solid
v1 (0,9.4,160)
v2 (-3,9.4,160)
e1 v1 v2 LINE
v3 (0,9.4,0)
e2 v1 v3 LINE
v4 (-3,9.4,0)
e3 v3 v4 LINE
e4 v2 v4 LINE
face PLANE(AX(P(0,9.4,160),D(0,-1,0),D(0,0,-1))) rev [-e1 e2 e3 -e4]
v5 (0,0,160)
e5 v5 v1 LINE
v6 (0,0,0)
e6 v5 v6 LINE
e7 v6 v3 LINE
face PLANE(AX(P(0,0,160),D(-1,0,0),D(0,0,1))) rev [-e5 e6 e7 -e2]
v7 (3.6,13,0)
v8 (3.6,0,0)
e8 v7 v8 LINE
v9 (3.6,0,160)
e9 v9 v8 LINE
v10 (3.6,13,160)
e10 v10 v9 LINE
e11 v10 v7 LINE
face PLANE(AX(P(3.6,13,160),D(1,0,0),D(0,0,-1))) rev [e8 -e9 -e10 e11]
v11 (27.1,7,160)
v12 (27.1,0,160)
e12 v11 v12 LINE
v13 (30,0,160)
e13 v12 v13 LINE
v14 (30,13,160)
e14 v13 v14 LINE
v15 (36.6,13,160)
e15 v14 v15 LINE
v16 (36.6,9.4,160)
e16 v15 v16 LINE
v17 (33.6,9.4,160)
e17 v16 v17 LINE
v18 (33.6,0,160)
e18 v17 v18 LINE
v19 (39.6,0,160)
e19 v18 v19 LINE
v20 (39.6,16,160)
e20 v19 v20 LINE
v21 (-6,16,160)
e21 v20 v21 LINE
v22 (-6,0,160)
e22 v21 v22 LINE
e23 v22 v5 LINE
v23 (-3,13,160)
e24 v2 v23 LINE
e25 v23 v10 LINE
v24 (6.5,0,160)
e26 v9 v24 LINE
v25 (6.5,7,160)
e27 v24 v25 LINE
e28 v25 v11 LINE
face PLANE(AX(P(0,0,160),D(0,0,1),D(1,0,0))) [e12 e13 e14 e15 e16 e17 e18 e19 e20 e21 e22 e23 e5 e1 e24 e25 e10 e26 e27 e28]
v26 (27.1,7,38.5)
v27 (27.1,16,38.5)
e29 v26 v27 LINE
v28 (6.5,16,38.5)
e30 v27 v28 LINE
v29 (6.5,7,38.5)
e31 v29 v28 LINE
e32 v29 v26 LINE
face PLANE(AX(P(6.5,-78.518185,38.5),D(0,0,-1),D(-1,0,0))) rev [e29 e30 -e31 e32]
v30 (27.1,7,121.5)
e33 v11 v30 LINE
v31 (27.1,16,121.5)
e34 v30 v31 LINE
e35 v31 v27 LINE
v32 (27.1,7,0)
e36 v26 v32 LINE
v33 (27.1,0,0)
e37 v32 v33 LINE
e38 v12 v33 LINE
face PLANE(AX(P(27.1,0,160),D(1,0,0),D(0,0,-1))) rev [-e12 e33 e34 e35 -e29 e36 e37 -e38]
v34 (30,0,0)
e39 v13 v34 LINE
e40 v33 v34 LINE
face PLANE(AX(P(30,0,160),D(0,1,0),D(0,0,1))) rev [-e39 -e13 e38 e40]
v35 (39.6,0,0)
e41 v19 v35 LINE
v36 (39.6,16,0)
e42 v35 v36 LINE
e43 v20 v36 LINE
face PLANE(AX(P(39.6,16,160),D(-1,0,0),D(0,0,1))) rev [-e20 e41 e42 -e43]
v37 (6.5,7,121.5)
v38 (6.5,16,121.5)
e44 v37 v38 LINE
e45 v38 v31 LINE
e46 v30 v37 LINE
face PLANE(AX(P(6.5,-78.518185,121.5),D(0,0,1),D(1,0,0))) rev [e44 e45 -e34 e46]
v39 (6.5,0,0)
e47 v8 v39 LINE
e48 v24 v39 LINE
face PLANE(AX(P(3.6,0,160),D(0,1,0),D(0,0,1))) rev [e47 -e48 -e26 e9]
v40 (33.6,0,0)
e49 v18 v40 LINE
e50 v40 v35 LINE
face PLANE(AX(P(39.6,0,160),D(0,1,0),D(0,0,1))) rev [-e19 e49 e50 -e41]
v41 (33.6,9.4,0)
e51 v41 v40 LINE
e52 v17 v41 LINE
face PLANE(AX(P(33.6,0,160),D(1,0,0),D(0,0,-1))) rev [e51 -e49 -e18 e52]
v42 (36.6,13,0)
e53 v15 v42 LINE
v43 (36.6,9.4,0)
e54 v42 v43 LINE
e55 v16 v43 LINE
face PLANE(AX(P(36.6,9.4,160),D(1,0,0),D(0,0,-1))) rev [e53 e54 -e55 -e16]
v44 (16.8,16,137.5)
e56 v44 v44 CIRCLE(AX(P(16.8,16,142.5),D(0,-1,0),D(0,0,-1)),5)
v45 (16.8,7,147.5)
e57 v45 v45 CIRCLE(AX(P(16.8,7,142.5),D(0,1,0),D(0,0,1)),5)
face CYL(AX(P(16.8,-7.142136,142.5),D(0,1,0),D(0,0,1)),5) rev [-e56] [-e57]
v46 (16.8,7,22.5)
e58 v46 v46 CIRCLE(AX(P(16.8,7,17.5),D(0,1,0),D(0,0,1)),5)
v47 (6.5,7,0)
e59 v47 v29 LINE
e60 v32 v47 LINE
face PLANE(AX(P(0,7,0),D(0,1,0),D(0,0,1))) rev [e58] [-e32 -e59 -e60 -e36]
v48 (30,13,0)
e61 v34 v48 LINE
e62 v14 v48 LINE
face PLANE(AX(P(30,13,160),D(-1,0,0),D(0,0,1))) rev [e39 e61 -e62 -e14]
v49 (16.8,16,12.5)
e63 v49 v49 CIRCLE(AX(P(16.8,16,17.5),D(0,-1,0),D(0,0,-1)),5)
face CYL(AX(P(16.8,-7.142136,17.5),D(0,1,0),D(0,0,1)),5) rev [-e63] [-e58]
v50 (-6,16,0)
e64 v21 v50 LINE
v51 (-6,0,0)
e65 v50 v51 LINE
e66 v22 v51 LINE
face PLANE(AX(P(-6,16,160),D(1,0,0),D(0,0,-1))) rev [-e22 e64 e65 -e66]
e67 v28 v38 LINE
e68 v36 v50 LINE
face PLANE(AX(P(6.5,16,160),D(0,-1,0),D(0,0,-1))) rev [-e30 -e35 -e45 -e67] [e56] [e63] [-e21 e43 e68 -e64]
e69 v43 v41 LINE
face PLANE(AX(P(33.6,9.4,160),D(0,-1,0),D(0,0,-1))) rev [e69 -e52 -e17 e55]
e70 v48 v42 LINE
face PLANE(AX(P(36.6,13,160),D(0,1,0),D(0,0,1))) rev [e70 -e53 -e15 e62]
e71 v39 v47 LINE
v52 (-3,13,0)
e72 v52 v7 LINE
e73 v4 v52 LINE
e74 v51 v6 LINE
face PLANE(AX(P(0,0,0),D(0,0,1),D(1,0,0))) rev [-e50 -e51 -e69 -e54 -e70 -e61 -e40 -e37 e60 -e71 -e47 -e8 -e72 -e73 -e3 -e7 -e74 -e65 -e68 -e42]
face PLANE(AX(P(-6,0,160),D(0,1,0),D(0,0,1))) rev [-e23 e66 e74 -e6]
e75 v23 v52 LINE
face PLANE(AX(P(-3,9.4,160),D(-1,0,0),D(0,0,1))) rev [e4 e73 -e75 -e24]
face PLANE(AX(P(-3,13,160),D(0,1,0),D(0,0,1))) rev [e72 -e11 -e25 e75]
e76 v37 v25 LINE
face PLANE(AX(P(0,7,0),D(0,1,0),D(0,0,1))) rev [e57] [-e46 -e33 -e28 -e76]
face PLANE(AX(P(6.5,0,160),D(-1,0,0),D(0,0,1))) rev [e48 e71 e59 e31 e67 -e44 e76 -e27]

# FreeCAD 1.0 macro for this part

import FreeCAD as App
import Part
import Sketcher
Q = App.Units.Quantity

doc = App.newDocument("Part")
body = doc.addObject("PartDesign::Body", "Body")

# Sketch on XY plane
sketch1 = body.newObject("Sketcher::SketchObject", "Sketch")
sketch1.AttachmentSupport = (doc.getObject("XY_Plane"), [""])
sketch1.MapMode = "FlatFace"
sketch1.addGeometry(Part.LineSegment(App.Vector(0, 0, 0), App.Vector(0, 9.4, 0)), False)
sketch1.addGeometry(Part.LineSegment(App.Vector(0, 9.4, 0), App.Vector(-3, 9.4, 0)), False)
sketch1.addGeometry(Part.LineSegment(App.Vector(-3, 9.4, 0), App.Vector(-3, 13, 0)), False)
sketch1.addGeometry(Part.LineSegment(App.Vector(-3, 13, 0), App.Vector(3.6, 13, 0)), False)
sketch1.addGeometry(Part.LineSegment(App.Vector(3.6, 13, 0), App.Vector(3.6, 0, 0)), False)
sketch1.addGeometry(Part.LineSegment(App.Vector(3.6, 0, 0), App.Vector(6.5, 0, 0)), False)
sketch1.addGeometry(Part.LineSegment(App.Vector(6.5, 0, 0), App.Vector(6.5, 16, 0)), False)
sketch1.addGeometry(Part.LineSegment(App.Vector(6.5, 16, 0), App.Vector(-6, 16, 0)), False)
sketch1.addGeometry(Part.LineSegment(App.Vector(-6, 16, 0), App.Vector(-6, 0, 0)), False)
sketch1.addGeometry(Part.LineSegment(App.Vector(-6, 0, 0), App.Vector(0, 0, 0)), False)
sketch1.addConstraint(Sketcher.Constraint("Coincident", 0, 2, 1, 1))
sketch1.addConstraint(Sketcher.Constraint("Coincident", 1, 2, 2, 1))
sketch1.addConstraint(Sketcher.Constraint("Coincident", 2, 2, 3, 1))
sketch1.addConstraint(Sketcher.Constraint("Coincident", 3, 2, 4, 1))
sketch1.addConstraint(Sketcher.Constraint("Coincident", 4, 2, 5, 1))
sketch1.addConstraint(Sketcher.Constraint("Coincident", 5, 2, 6, 1))
sketch1.addConstraint(Sketcher.Constraint("Coincident", 6, 2, 7, 1))
sketch1.addConstraint(Sketcher.Constraint("Coincident", 7, 2, 8, 1))
sketch1.addConstraint(Sketcher.Constraint("Coincident", 8, 2, 9, 1))
sketch1.addConstraint(Sketcher.Constraint("Coincident", 9, 2, 0, 1))
sketch1.addConstraint(Sketcher.Constraint("Vertical", 0))
sketch1.addConstraint(Sketcher.Constraint("Horizontal", 1))
sketch1.addConstraint(Sketcher.Constraint("Vertical", 2))
sketch1.addConstraint(Sketcher.Constraint("Horizontal", 3))
sketch1.addConstraint(Sketcher.Constraint("Vertical", 4))
sketch1.addConstraint(Sketcher.Constraint("Horizontal", 5))
sketch1.addConstraint(Sketcher.Constraint("Vertical", 6))
sketch1.addConstraint(Sketcher.Constraint("Horizontal", 7))
sketch1.addConstraint(Sketcher.Constraint("Vertical", 8))
sketch1.addConstraint(Sketcher.Constraint("Horizontal", 9))
sketch1.addConstraint(Sketcher.Constraint("Coincident", 9, 2, -1, 1))
sketch1.addConstraint(Sketcher.Constraint("PointOnObject", 4, 2, -1))
sketch1.addConstraint(Sketcher.Constraint("DistanceX", 1, 2, 1, 1, Q("3 mm")))
sketch1.addConstraint(Sketcher.Constraint("DistanceX", 9, 1, 9, 2, Q("6 mm")))
sketch1.addConstraint(Sketcher.Constraint("DistanceY", 4, 2, 4, 1, Q("13 mm")))
sketch1.addConstraint(Sketcher.Constraint("DistanceY", 6, 1, 6, 2, Q("16 mm")))
sketch1.addConstraint(Sketcher.Constraint("DistanceX", 3, 1, 3, 2, Q("6.6 mm")))
sketch1.addConstraint(Sketcher.Constraint("DistanceX", 5, 1, 5, 2, Q("2.9 mm")))
sketch1.addConstraint(Sketcher.Constraint("DistanceY", 0, 1, 0, 2, Q("9.4 mm")))
pad1 = body.newObject("PartDesign::Pad", "Pad")
pad1.Profile = sketch1
pad1.Length = 160
body2 = doc.addObject("PartDesign::Body", "Body001")

# Sketch on XY plane
sketch2 = body2.newObject("Sketcher::SketchObject", "Sketch001")
sketch2.AttachmentSupport = (doc.getObject("XY_Plane001"), [""])
sketch2.MapMode = "FlatFace"
sketch2.addGeometry(Part.LineSegment(App.Vector(33.6, 0, 0), App.Vector(39.6, 0, 0)), False)
sketch2.addGeometry(Part.LineSegment(App.Vector(39.6, 0, 0), App.Vector(39.6, 16, 0)), False)
sketch2.addGeometry(Part.LineSegment(App.Vector(39.6, 16, 0), App.Vector(27.1, 16, 0)), False)
sketch2.addGeometry(Part.LineSegment(App.Vector(27.1, 16, 0), App.Vector(27.1, 0, 0)), False)
sketch2.addGeometry(Part.LineSegment(App.Vector(27.1, 0, 0), App.Vector(30, 0, 0)), False)
sketch2.addGeometry(Part.LineSegment(App.Vector(30, 0, 0), App.Vector(30, 13, 0)), False)
sketch2.addGeometry(Part.LineSegment(App.Vector(30, 13, 0), App.Vector(36.6, 13, 0)), False)
sketch2.addGeometry(Part.LineSegment(App.Vector(36.6, 13, 0), App.Vector(36.6, 9.4, 0)), False)
sketch2.addGeometry(Part.LineSegment(App.Vector(36.6, 9.4, 0), App.Vector(33.6, 9.4, 0)), False)
sketch2.addGeometry(Part.LineSegment(App.Vector(33.6, 9.4, 0), App.Vector(33.6, 0, 0)), False)
sketch2.addConstraint(Sketcher.Constraint("Coincident", 0, 2, 1, 1))
sketch2.addConstraint(Sketcher.Constraint("Coincident", 1, 2, 2, 1))
sketch2.addConstraint(Sketcher.Constraint("Coincident", 2, 2, 3, 1))
sketch2.addConstraint(Sketcher.Constraint("Coincident", 3, 2, 4, 1))
sketch2.addConstraint(Sketcher.Constraint("Coincident", 4, 2, 5, 1))
sketch2.addConstraint(Sketcher.Constraint("Coincident", 5, 2, 6, 1))
sketch2.addConstraint(Sketcher.Constraint("Coincident", 6, 2, 7, 1))
sketch2.addConstraint(Sketcher.Constraint("Coincident", 7, 2, 8, 1))
sketch2.addConstraint(Sketcher.Constraint("Coincident", 8, 2, 9, 1))
sketch2.addConstraint(Sketcher.Constraint("Coincident", 9, 2, 0, 1))
sketch2.addConstraint(Sketcher.Constraint("Horizontal", 0))
sketch2.addConstraint(Sketcher.Constraint("Vertical", 1))
sketch2.addConstraint(Sketcher.Constraint("Horizontal", 2))
sketch2.addConstraint(Sketcher.Constraint("Vertical", 3))
sketch2.addConstraint(Sketcher.Constraint("Horizontal", 4))
sketch2.addConstraint(Sketcher.Constraint("Vertical", 5))
sketch2.addConstraint(Sketcher.Constraint("Horizontal", 6))
sketch2.addConstraint(Sketcher.Constraint("Vertical", 7))
sketch2.addConstraint(Sketcher.Constraint("Horizontal", 8))
sketch2.addConstraint(Sketcher.Constraint("Vertical", 9))
sketch2.addConstraint(Sketcher.Constraint("PointOnObject", 0, 2, -1))
sketch2.addConstraint(Sketcher.Constraint("PointOnObject", 3, 2, -1))
sketch2.addConstraint(Sketcher.Constraint("DistanceX", 0, 1, 0, 2, Q("6 mm")))
sketch2.addConstraint(Sketcher.Constraint("DistanceX", 8, 2, 8, 1, Q("3 mm")))
sketch2.addConstraint(Sketcher.Constraint("DistanceY", 1, 1, 1, 2, Q("16 mm")))
sketch2.addConstraint(Sketcher.Constraint("DistanceY", 5, 1, 5, 2, Q("13 mm")))
sketch2.addConstraint(Sketcher.Constraint("DistanceX", 2, 2, 2, 1, Q("12.5 mm")))
sketch2.addConstraint(Sketcher.Constraint("DistanceX", 4, 1, 4, 2, Q("2.9 mm")))
sketch2.addConstraint(Sketcher.Constraint("DistanceY", 7, 2, 7, 1, Q("3.6 mm")))
sketch2.addConstraint(Sketcher.Constraint("DistanceX", -1, 1, 4, 2, Q("30 mm")))
pad2 = body2.newObject("PartDesign::Pad", "Pad001")
pad2.Profile = sketch2
pad2.Length = 160
body.AllowCompound = True
doc.recompute()

boolean = body.newObject("PartDesign::Boolean", "Boolean")
boolean.Type = "Fuse"
boolean.addObjects([body2])

# Sketch on XZ plane
sketch3 = body.newObject("Sketcher::SketchObject", "Sketch002")
sketch3.AttachmentSupport = (doc.getObject("XZ_Plane"), [""])
sketch3.MapMode = "FlatFace"
sketch3.AttachmentOffset = App.Placement(App.Vector(0, 0, -16), App.Rotation())
sketch3.addGeometry(Part.LineSegment(App.Vector(6, 0, 0), App.Vector(6, 160, 0)), False)
sketch3.addGeometry(Part.LineSegment(App.Vector(6, 160, 0), App.Vector(27, 160, 0)), False)
sketch3.addGeometry(Part.LineSegment(App.Vector(27, 160, 0), App.Vector(27, 0, 0)), False)
sketch3.addGeometry(Part.LineSegment(App.Vector(27, 0, 0), App.Vector(6, 0, 0)), False)
sketch3.addConstraint(Sketcher.Constraint("Coincident", 0, 2, 1, 1))
sketch3.addConstraint(Sketcher.Constraint("Coincident", 1, 2, 2, 1))
sketch3.addConstraint(Sketcher.Constraint("Coincident", 2, 2, 3, 1))
sketch3.addConstraint(Sketcher.Constraint("Coincident", 3, 2, 0, 1))
sketch3.addConstraint(Sketcher.Constraint("Vertical", 0))
sketch3.addConstraint(Sketcher.Constraint("Horizontal", 1))
sketch3.addConstraint(Sketcher.Constraint("Vertical", 2))
sketch3.addConstraint(Sketcher.Constraint("Horizontal", 3))
sketch3.addConstraint(Sketcher.Constraint("PointOnObject", 2, 2, -1))
sketch3.addConstraint(Sketcher.Constraint("DistanceY", 0, 1, 0, 2, Q("160 mm")))
sketch3.addConstraint(Sketcher.Constraint("DistanceX", 1, 1, 1, 2, Q("20.6 mm")))
sketch3.addConstraint(Sketcher.Constraint("DistanceX", -1, 1, 0, 2, Q("6.5 mm")))
pad3 = body.newObject("PartDesign::Pad", "Pad002")
pad3.Profile = sketch3
pad3.Length = 9

# Sketch on XZ plane
sketch4 = body.newObject("Sketcher::SketchObject", "Sketch003")
sketch4.AttachmentSupport = (doc.getObject("XZ_Plane"), [""])
sketch4.MapMode = "FlatFace"
sketch4.AttachmentOffset = App.Placement(App.Vector(0, 0, -16), App.Rotation())
sketch4.addGeometry(Part.Circle(App.Vector(17, 18, 0), App.Vector(0, 0, 1), 5), False)
sketch4.addGeometry(Part.Circle(App.Vector(17, 142, 0), App.Vector(0, 0, 1), 5), False)
sketch4.addConstraint(Sketcher.Constraint("Equal", 0, 1))
sketch4.addConstraint(Sketcher.Constraint("Vertical", 0, 3, 1, 3))
sketch4.addConstraint(Sketcher.Constraint("Diameter", 0, Q("10 mm")))
sketch4.addConstraint(Sketcher.Constraint("DistanceY", 0, 3, 1, 3, Q("125 mm")))
sketch4.addConstraint(Sketcher.Constraint("DistanceX", -1, 1, 0, 3, Q("16.8 mm")))
sketch4.addConstraint(Sketcher.Constraint("DistanceY", -1, 1, 0, 3, Q("17.5 mm")))
pocket1 = body.newObject("PartDesign::Pocket", "Pocket")
pocket1.Profile = sketch4
pocket1.Length = 9
pocket1.Reversed = True

# Sketch on XZ plane
sketch5 = body.newObject("Sketcher::SketchObject", "Sketch004")
sketch5.AttachmentSupport = (doc.getObject("XZ_Plane"), [""])
sketch5.MapMode = "FlatFace"
sketch5.AttachmentOffset = App.Placement(App.Vector(0, 0, -16), App.Rotation())
sketch5.addGeometry(Part.LineSegment(App.Vector(6, 38, 0), App.Vector(6, 122, 0)), False)
sketch5.addGeometry(Part.LineSegment(App.Vector(6, 122, 0), App.Vector(27, 122, 0)), False)
sketch5.addGeometry(Part.LineSegment(App.Vector(27, 122, 0), App.Vector(27, 38, 0)), False)
sketch5.addGeometry(Part.LineSegment(App.Vector(27, 38, 0), App.Vector(6, 38, 0)), False)
sketch5.addConstraint(Sketcher.Constraint("Coincident", 0, 2, 1, 1))
sketch5.addConstraint(Sketcher.Constraint("Coincident", 1, 2, 2, 1))
sketch5.addConstraint(Sketcher.Constraint("Coincident", 2, 2, 3, 1))
sketch5.addConstraint(Sketcher.Constraint("Coincident", 3, 2, 0, 1))
sketch5.addConstraint(Sketcher.Constraint("Vertical", 0))
sketch5.addConstraint(Sketcher.Constraint("Horizontal", 1))
sketch5.addConstraint(Sketcher.Constraint("Vertical", 2))
sketch5.addConstraint(Sketcher.Constraint("Horizontal", 3))
sketch5.addConstraint(Sketcher.Constraint("DistanceY", 0, 1, 0, 2, Q("83 mm")))
sketch5.addConstraint(Sketcher.Constraint("DistanceX", 1, 1, 1, 2, Q("20.6 mm")))
sketch5.addConstraint(Sketcher.Constraint("DistanceX", -1, 1, 0, 2, Q("6.5 mm")))
sketch5.addConstraint(Sketcher.Constraint("DistanceY", -1, 1, 0, 2, Q("121.5 mm")))
pocket2 = body.newObject("PartDesign::Pocket", "Pocket001")
pocket2.Profile = sketch5
pocket2.Length = 9
pocket2.Reversed = True

doc.recompute()
